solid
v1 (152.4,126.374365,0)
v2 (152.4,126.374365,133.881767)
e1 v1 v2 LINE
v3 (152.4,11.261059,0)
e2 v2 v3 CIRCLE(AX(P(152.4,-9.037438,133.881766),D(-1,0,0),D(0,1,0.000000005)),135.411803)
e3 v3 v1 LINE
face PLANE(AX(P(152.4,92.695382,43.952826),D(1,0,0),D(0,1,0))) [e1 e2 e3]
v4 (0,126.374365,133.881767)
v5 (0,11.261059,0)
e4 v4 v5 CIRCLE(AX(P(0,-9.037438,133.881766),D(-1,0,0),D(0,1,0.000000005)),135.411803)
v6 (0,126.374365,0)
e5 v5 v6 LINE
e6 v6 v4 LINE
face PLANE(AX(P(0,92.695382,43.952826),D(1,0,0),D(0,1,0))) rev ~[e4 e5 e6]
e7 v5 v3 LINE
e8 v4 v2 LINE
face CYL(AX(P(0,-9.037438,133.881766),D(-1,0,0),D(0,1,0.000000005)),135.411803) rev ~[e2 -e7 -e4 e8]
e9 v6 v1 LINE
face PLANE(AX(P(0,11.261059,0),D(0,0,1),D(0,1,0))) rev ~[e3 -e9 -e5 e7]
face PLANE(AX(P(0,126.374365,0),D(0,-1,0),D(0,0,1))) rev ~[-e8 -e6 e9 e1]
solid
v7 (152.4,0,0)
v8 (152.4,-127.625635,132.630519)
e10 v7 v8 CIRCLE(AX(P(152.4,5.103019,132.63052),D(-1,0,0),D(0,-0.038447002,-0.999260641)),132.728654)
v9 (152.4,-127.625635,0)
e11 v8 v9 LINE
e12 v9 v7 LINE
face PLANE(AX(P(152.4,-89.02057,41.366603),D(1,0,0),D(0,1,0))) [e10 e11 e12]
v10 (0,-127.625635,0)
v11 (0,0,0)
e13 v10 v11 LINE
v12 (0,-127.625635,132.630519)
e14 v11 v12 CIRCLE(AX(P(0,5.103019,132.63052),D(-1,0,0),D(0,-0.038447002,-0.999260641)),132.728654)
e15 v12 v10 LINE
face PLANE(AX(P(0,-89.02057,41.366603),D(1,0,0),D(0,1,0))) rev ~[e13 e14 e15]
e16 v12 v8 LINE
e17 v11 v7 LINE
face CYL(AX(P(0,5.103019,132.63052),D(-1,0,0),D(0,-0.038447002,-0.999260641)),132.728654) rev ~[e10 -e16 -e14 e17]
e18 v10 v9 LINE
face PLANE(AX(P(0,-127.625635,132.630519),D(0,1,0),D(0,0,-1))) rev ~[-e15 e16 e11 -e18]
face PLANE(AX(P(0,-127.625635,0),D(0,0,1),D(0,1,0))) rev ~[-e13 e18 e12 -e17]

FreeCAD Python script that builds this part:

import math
import FreeCAD as App
import Part
import Sketcher

V = App.Vector
Q = App.Units.Quantity

doc = App.newDocument("Part")
body = doc.addObject("PartDesign::Body", "Body")
body.AllowCompound = True

# Sketch on YZ plane
sketch1 = body.newObject("Sketcher::SketchObject", "Sketch")
sketch1.AttachmentSupport = (doc.getObject("YZ_Plane"), [""])
sketch1.MapMode = "FlatFace"
sketch1.addGeometry([
    Part.ArcOfCircle(Part.Circle(V(-9.037438, 133.881766, 0), V(0, 0, 1), 135.411803), math.radians(-81.378754), math.radians(0)),  # 0
    Part.LineSegment(V(11.261059, 0, 0), V(126.374365, 0, 0)),  # 1
    Part.LineSegment(V(126.374365, 0, 0), V(126.374365, 133.881767, 0)),  # 2
    Part.LineSegment(V(-127.625635, 132.630519, 0), V(-127.625635, 0, 0)),  # 3
    Part.LineSegment(V(-127.625635, 0, 0), V(0, 0, 0)),  # 4
    Part.ArcOfCircle(Part.Circle(V(5.103019, 132.63052, 0), V(0, 0, 1), 132.728654), math.radians(-180), math.radians(-92.203394)),  # 5
], False)
sketch1.addConstraint([
    Sketcher.Constraint("Coincident", 0, 1, 1, 1),
    Sketcher.Constraint("Coincident", 1, 2, 2, 1),
    Sketcher.Constraint("Coincident", 2, 2, 0, 2),
    Sketcher.Constraint("Coincident", 3, 2, 4, 1),
    Sketcher.Constraint("Coincident", 4, 2, 5, 2),
    Sketcher.Constraint("Coincident", 5, 1, 3, 1),
    Sketcher.Constraint("Horizontal", 1),
    Sketcher.Constraint("Vertical", 2),
    Sketcher.Constraint("Vertical", 3),
    Sketcher.Constraint("Horizontal", 4),
    Sketcher.Constraint("Coincident", 4, 2, -1, 1),
    Sketcher.Constraint("PointOnObject", 0, 1, -1),
    Sketcher.Constraint("DistanceX", 3, 2, 1, 2, Q("10 in")),
    Sketcher.Constraint("Radius", 0, Q("135.411803 mm")),
    Sketcher.Constraint("Radius", 5, Q("132.728654 mm")),
    Sketcher.Constraint("DistanceY", 3, 2, 3, 1, Q("132.630519 mm")),
    Sketcher.Constraint("DistanceX", 1, 1, 1, 2, Q("115.113306 mm")),
    Sketcher.Constraint("DistanceX", 4, 1, 4, 2, Q("127.625635 mm")),
    Sketcher.Constraint("DistanceY", 2, 1, 2, 2, Q("133.881767 mm")),
])
pad1 = body.newObject("PartDesign::Pad", "Pad")
pad1.Profile = sketch1
pad1.Length = Q("6 in")

doc.recompute()
